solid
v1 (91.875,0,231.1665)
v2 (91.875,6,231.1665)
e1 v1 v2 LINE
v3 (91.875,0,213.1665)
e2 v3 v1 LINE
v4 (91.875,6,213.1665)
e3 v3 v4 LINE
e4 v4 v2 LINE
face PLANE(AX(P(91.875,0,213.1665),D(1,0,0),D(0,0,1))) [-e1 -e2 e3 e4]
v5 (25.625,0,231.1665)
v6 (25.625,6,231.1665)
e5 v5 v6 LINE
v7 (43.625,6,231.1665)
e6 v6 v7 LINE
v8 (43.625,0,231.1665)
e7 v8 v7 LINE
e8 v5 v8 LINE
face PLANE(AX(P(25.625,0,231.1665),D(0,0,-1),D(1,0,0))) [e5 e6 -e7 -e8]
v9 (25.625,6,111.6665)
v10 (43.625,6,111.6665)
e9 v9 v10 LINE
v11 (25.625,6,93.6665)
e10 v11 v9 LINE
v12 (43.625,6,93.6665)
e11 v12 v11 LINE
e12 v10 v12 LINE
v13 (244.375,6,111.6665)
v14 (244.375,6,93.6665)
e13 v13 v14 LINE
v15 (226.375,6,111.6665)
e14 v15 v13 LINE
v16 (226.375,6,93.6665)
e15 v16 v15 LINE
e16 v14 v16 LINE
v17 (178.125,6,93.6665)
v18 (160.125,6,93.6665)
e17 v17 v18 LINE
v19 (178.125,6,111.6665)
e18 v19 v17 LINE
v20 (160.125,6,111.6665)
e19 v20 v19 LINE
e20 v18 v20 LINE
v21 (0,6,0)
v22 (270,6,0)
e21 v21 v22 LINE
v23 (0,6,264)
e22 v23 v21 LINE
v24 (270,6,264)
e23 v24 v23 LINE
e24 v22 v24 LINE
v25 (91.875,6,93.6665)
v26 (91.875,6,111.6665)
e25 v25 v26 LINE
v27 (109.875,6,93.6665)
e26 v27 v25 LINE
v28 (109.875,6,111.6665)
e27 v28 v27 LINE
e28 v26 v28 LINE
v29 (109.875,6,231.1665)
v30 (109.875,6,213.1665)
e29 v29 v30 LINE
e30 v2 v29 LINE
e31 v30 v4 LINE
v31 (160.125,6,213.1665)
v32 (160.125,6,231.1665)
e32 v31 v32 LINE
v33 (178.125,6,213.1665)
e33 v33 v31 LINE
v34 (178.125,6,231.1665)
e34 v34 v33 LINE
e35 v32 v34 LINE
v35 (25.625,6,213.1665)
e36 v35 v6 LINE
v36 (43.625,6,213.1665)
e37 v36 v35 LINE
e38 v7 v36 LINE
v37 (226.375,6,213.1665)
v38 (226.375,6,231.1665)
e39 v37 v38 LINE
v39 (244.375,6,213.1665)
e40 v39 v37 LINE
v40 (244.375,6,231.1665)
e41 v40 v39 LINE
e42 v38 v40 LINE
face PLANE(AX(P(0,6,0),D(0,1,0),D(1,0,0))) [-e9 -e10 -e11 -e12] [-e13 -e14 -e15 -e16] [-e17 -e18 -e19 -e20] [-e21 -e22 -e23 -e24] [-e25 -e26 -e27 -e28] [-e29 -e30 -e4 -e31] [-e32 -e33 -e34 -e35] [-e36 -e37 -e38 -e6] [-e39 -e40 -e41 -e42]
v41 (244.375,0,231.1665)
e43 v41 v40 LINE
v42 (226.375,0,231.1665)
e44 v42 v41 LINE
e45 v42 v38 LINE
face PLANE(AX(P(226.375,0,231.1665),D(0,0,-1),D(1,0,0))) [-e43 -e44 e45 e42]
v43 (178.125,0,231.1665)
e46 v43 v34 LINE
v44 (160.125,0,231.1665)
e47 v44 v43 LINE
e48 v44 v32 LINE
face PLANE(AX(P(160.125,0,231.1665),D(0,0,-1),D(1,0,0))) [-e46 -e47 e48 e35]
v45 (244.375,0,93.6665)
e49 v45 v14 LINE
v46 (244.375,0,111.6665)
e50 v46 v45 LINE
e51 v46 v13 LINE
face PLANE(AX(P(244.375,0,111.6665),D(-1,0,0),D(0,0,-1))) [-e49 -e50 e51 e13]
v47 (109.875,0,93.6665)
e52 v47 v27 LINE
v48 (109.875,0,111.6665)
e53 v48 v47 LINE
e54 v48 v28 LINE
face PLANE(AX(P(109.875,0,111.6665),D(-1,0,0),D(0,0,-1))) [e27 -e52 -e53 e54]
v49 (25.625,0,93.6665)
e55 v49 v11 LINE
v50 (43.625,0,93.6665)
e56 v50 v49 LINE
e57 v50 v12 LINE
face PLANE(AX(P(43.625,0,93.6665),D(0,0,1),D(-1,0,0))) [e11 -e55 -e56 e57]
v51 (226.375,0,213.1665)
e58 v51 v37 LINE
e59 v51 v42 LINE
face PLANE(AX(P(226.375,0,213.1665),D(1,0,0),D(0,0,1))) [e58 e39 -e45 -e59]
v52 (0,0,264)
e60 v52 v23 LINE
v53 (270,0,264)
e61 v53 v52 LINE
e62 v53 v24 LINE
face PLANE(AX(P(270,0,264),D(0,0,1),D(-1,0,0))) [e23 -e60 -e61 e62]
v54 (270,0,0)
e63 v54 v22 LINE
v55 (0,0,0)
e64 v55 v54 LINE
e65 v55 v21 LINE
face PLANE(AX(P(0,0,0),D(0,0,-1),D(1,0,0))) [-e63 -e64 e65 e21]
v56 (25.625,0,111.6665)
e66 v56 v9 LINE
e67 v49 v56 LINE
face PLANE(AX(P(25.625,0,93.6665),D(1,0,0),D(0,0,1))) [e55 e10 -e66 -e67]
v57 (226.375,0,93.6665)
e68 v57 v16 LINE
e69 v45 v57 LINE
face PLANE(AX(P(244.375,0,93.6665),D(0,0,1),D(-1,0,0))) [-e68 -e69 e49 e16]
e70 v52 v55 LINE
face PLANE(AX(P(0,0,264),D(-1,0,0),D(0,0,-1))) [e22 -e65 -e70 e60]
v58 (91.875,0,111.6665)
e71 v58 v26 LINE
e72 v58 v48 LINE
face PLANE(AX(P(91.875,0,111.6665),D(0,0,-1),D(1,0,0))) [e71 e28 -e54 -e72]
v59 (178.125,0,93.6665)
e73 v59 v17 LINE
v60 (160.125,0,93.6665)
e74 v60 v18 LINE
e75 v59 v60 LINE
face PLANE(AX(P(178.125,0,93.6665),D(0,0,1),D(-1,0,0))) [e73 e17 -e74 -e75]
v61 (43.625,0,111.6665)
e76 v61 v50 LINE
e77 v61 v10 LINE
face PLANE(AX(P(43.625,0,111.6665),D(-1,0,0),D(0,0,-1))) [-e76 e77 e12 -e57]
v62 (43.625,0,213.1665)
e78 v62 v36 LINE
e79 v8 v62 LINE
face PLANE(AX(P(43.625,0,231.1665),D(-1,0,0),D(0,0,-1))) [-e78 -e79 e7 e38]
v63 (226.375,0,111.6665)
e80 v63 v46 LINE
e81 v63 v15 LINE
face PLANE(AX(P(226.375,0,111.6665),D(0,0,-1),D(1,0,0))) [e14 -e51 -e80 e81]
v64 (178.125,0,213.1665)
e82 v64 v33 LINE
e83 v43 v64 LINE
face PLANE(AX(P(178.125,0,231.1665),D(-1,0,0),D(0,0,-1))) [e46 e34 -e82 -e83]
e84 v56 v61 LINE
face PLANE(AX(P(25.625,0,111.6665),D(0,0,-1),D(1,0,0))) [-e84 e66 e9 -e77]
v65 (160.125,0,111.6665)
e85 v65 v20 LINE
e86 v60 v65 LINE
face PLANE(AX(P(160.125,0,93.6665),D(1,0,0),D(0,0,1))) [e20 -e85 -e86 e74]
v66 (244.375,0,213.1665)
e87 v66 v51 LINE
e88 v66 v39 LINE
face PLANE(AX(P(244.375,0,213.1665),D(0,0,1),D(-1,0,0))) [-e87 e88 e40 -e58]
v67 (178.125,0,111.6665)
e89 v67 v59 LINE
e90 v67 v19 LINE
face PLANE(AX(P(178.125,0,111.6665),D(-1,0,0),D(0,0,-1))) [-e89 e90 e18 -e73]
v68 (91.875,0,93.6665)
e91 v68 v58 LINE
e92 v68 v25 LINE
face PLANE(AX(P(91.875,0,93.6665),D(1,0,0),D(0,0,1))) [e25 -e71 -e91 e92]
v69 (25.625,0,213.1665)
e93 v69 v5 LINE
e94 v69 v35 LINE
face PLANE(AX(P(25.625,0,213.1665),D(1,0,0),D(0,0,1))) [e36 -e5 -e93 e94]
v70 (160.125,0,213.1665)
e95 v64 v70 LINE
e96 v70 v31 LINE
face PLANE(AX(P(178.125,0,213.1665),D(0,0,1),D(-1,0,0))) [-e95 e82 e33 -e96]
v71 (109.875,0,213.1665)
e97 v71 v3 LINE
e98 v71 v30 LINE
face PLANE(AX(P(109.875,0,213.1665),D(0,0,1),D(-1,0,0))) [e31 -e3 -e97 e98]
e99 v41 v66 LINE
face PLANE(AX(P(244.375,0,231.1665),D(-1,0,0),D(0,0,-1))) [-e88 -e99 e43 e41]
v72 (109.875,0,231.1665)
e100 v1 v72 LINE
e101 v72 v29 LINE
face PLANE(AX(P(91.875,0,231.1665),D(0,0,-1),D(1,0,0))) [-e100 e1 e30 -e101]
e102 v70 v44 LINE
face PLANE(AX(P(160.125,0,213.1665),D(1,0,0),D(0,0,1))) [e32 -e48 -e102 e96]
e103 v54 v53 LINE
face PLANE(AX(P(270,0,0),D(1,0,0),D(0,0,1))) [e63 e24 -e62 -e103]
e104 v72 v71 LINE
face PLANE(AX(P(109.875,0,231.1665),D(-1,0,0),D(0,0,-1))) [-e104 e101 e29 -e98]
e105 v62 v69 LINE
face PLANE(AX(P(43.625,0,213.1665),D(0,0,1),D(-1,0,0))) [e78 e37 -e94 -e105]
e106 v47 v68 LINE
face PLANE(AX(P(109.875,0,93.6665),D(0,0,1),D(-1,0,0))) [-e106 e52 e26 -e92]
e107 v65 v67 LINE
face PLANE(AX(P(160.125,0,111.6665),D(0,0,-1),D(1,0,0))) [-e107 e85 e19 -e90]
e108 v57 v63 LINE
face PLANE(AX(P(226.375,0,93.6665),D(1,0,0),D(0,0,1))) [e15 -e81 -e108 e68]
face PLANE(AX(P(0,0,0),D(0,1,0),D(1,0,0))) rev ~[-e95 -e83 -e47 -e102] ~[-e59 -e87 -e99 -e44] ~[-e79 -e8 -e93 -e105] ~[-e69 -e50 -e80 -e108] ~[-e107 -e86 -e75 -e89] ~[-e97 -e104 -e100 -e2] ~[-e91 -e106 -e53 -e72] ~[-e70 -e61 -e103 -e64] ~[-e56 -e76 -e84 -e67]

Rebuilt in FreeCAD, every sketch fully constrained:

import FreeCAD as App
import Part
import Sketcher

V = App.Vector


def add_polygon(sketch, points):
    """Adds a closed chain of lines whose ends are joined by coincident constraints."""
    first, n = sketch.GeometryCount, len(points)
    for a, b in zip(points, points[1:] + points[:1]):
        sketch.addGeometry(Part.LineSegment(App.Vector(*a, 0), App.Vector(*b, 0)), False)
    for i in range(n):
        sketch.addConstraint(Sketcher.Constraint("Coincident", first + i, 2, first + (i + 1) % n, 1))

doc = App.newDocument("Part")
body = doc.addObject("PartDesign::Body", "Body")

# Sketch on XZ plane
sketch1 = body.newObject("Sketcher::SketchObject", "Sketch")
sketch1.AttachmentSupport = (doc.getObject("XZ_Plane"), [""])
sketch1.MapMode = "FlatFace"
add_polygon(sketch1, [(270, 0), (0, 0), (0, 264), (270, 264)])  # lines 0-3
sketch1.addConstraint(Sketcher.Constraint("Horizontal", 0))
sketch1.addConstraint(Sketcher.Constraint("Vertical", 1))
sketch1.addConstraint(Sketcher.Constraint("Horizontal", 2))
sketch1.addConstraint(Sketcher.Constraint("Vertical", 3))
sketch1.addConstraint(Sketcher.Constraint("Coincident", 0, 2, -1, 1))
sketch1.addConstraint(Sketcher.Constraint("DistanceX", 0, 2, 0, 1, 270.0))
sketch1.addConstraint(Sketcher.Constraint("DistanceY", 1, 1, 1, 2, 264.0))
pad1 = body.newObject("PartDesign::Pad", "Pad")
pad1.Profile = sketch1
pad1.Length = 6
pad1.Reversed = True

# Sketch on XZ plane
sketch2 = body.newObject("Sketcher::SketchObject", "Sketch001")
sketch2.AttachmentSupport = (doc.getObject("XZ_Plane"), [""])
sketch2.MapMode = "FlatFace"
add_polygon(sketch2, [(44, 231), (26, 231), (26, 213), (44, 213)])  # lines 0-3
add_polygon(sketch2, [(110, 231), (92, 231), (92, 213), (110, 213)])  # lines 4-7
add_polygon(sketch2, [(178, 231), (160, 231), (160, 213), (178, 213)])  # lines 8-11
add_polygon(sketch2, [(244, 231), (226, 231), (226, 213), (244, 213)])  # lines 12-15
add_polygon(sketch2, [(44, 112), (26, 112), (26, 94), (44, 94)])  # lines 16-19
add_polygon(sketch2, [(110, 112), (92, 112), (92, 94), (110, 94)])  # lines 20-23
add_polygon(sketch2, [(178, 112), (160, 112), (160, 94), (178, 94)])  # lines 24-27
add_polygon(sketch2, [(244, 112), (226, 112), (226, 94), (244, 94)])  # lines 28-31
sketch2.addConstraint(Sketcher.Constraint("Horizontal", 0))
sketch2.addConstraint(Sketcher.Constraint("Vertical", 1))
sketch2.addConstraint(Sketcher.Constraint("Horizontal", 2))
sketch2.addConstraint(Sketcher.Constraint("Vertical", 3))
sketch2.addConstraint(Sketcher.Constraint("Horizontal", 4))
sketch2.addConstraint(Sketcher.Constraint("Vertical", 5))
sketch2.addConstraint(Sketcher.Constraint("Horizontal", 6))
sketch2.addConstraint(Sketcher.Constraint("Vertical", 7))
sketch2.addConstraint(Sketcher.Constraint("Horizontal", 8))
sketch2.addConstraint(Sketcher.Constraint("Vertical", 9))
sketch2.addConstraint(Sketcher.Constraint("Horizontal", 10))
sketch2.addConstraint(Sketcher.Constraint("Vertical", 11))
sketch2.addConstraint(Sketcher.Constraint("Horizontal", 12))
sketch2.addConstraint(Sketcher.Constraint("Vertical", 13))
sketch2.addConstraint(Sketcher.Constraint("Horizontal", 14))
sketch2.addConstraint(Sketcher.Constraint("Vertical", 15))
sketch2.addConstraint(Sketcher.Constraint("Horizontal", 16))
sketch2.addConstraint(Sketcher.Constraint("Vertical", 17))
sketch2.addConstraint(Sketcher.Constraint("Horizontal", 18))
sketch2.addConstraint(Sketcher.Constraint("Vertical", 19))
sketch2.addConstraint(Sketcher.Constraint("Horizontal", 20))
sketch2.addConstraint(Sketcher.Constraint("Vertical", 21))
sketch2.addConstraint(Sketcher.Constraint("Horizontal", 22))
sketch2.addConstraint(Sketcher.Constraint("Vertical", 23))
sketch2.addConstraint(Sketcher.Constraint("Horizontal", 24))
sketch2.addConstraint(Sketcher.Constraint("Vertical", 25))
sketch2.addConstraint(Sketcher.Constraint("Horizontal", 26))
sketch2.addConstraint(Sketcher.Constraint("Vertical", 27))
sketch2.addConstraint(Sketcher.Constraint("Horizontal", 28))
sketch2.addConstraint(Sketcher.Constraint("Vertical", 29))
sketch2.addConstraint(Sketcher.Constraint("Horizontal", 30))
sketch2.addConstraint(Sketcher.Constraint("Vertical", 31))
sketch2.addConstraint(Sketcher.Constraint("Horizontal", 3, 2, 4, 2))
sketch2.addConstraint(Sketcher.Constraint("Horizontal", 2, 2, 5, 2))
sketch2.addConstraint(Sketcher.Constraint("Horizontal", 7, 2, 8, 2))
sketch2.addConstraint(Sketcher.Constraint("Horizontal", 6, 2, 9, 2))
sketch2.addConstraint(Sketcher.Constraint("Horizontal", 11, 2, 12, 2))
sketch2.addConstraint(Sketcher.Constraint("Horizontal", 10, 2, 13, 2))
sketch2.addConstraint(Sketcher.Constraint("Horizontal", 19, 2, 20, 2))
sketch2.addConstraint(Sketcher.Constraint("Horizontal", 18, 2, 21, 2))
sketch2.addConstraint(Sketcher.Constraint("Horizontal", 23, 2, 24, 2))
sketch2.addConstraint(Sketcher.Constraint("Horizontal", 22, 2, 25, 2))
sketch2.addConstraint(Sketcher.Constraint("Horizontal", 27, 2, 28, 2))
sketch2.addConstraint(Sketcher.Constraint("Horizontal", 26, 2, 29, 2))
sketch2.addConstraint(Sketcher.Constraint("Vertical", 1, 2, 16, 2))
sketch2.addConstraint(Sketcher.Constraint("Vertical", 3, 2, 18, 2))
sketch2.addConstraint(Sketcher.Constraint("Vertical", 5, 2, 20, 2))
sketch2.addConstraint(Sketcher.Constraint("Vertical", 7, 2, 22, 2))
sketch2.addConstraint(Sketcher.Constraint("Vertical", 9, 2, 24, 2))
sketch2.addConstraint(Sketcher.Constraint("Vertical", 11, 2, 26, 2))
sketch2.addConstraint(Sketcher.Constraint("Vertical", 13, 2, 28, 2))
sketch2.addConstraint(Sketcher.Constraint("Vertical", 15, 2, 30, 2))
sketch2.addConstraint(Sketcher.Constraint("Equal", 2, 4))
sketch2.addConstraint(Sketcher.Constraint("Equal", 6, 8))
sketch2.addConstraint(Sketcher.Constraint("Equal", 10, 12))
sketch2.addConstraint(Sketcher.Constraint("Equal", 30, 1))
sketch2.addConstraint(Sketcher.Constraint("Equal", 15, 17))
sketch2.addConstraint(Sketcher.Constraint("DistanceX", 0, 2, 0, 1, 18.0))
sketch2.addConstraint(Sketcher.Constraint("DistanceX", 3, 2, 4, 2, 48.25))
sketch2.addConstraint(Sketcher.Constraint("DistanceX", 11, 2, 12, 2, 48.25))
sketch2.addConstraint(Sketcher.Constraint("DistanceX", -1, 1, 0, 2, 25.625))
sketch2.addConstraint(Sketcher.Constraint("DistanceX", 3, 2, 8, 2, 116.5))
sketch2.addConstraint(Sketcher.Constraint("DistanceY", 16, 2, 1, 2, 101.5))
sketch2.addConstraint(Sketcher.Constraint("DistanceY", -1, 1, 0, 2, 231.1665))
pocket1 = body.newObject("PartDesign::Pocket", "Pocket")
pocket1.Profile = sketch2
pocket1.Length = 6

doc.recompute()
